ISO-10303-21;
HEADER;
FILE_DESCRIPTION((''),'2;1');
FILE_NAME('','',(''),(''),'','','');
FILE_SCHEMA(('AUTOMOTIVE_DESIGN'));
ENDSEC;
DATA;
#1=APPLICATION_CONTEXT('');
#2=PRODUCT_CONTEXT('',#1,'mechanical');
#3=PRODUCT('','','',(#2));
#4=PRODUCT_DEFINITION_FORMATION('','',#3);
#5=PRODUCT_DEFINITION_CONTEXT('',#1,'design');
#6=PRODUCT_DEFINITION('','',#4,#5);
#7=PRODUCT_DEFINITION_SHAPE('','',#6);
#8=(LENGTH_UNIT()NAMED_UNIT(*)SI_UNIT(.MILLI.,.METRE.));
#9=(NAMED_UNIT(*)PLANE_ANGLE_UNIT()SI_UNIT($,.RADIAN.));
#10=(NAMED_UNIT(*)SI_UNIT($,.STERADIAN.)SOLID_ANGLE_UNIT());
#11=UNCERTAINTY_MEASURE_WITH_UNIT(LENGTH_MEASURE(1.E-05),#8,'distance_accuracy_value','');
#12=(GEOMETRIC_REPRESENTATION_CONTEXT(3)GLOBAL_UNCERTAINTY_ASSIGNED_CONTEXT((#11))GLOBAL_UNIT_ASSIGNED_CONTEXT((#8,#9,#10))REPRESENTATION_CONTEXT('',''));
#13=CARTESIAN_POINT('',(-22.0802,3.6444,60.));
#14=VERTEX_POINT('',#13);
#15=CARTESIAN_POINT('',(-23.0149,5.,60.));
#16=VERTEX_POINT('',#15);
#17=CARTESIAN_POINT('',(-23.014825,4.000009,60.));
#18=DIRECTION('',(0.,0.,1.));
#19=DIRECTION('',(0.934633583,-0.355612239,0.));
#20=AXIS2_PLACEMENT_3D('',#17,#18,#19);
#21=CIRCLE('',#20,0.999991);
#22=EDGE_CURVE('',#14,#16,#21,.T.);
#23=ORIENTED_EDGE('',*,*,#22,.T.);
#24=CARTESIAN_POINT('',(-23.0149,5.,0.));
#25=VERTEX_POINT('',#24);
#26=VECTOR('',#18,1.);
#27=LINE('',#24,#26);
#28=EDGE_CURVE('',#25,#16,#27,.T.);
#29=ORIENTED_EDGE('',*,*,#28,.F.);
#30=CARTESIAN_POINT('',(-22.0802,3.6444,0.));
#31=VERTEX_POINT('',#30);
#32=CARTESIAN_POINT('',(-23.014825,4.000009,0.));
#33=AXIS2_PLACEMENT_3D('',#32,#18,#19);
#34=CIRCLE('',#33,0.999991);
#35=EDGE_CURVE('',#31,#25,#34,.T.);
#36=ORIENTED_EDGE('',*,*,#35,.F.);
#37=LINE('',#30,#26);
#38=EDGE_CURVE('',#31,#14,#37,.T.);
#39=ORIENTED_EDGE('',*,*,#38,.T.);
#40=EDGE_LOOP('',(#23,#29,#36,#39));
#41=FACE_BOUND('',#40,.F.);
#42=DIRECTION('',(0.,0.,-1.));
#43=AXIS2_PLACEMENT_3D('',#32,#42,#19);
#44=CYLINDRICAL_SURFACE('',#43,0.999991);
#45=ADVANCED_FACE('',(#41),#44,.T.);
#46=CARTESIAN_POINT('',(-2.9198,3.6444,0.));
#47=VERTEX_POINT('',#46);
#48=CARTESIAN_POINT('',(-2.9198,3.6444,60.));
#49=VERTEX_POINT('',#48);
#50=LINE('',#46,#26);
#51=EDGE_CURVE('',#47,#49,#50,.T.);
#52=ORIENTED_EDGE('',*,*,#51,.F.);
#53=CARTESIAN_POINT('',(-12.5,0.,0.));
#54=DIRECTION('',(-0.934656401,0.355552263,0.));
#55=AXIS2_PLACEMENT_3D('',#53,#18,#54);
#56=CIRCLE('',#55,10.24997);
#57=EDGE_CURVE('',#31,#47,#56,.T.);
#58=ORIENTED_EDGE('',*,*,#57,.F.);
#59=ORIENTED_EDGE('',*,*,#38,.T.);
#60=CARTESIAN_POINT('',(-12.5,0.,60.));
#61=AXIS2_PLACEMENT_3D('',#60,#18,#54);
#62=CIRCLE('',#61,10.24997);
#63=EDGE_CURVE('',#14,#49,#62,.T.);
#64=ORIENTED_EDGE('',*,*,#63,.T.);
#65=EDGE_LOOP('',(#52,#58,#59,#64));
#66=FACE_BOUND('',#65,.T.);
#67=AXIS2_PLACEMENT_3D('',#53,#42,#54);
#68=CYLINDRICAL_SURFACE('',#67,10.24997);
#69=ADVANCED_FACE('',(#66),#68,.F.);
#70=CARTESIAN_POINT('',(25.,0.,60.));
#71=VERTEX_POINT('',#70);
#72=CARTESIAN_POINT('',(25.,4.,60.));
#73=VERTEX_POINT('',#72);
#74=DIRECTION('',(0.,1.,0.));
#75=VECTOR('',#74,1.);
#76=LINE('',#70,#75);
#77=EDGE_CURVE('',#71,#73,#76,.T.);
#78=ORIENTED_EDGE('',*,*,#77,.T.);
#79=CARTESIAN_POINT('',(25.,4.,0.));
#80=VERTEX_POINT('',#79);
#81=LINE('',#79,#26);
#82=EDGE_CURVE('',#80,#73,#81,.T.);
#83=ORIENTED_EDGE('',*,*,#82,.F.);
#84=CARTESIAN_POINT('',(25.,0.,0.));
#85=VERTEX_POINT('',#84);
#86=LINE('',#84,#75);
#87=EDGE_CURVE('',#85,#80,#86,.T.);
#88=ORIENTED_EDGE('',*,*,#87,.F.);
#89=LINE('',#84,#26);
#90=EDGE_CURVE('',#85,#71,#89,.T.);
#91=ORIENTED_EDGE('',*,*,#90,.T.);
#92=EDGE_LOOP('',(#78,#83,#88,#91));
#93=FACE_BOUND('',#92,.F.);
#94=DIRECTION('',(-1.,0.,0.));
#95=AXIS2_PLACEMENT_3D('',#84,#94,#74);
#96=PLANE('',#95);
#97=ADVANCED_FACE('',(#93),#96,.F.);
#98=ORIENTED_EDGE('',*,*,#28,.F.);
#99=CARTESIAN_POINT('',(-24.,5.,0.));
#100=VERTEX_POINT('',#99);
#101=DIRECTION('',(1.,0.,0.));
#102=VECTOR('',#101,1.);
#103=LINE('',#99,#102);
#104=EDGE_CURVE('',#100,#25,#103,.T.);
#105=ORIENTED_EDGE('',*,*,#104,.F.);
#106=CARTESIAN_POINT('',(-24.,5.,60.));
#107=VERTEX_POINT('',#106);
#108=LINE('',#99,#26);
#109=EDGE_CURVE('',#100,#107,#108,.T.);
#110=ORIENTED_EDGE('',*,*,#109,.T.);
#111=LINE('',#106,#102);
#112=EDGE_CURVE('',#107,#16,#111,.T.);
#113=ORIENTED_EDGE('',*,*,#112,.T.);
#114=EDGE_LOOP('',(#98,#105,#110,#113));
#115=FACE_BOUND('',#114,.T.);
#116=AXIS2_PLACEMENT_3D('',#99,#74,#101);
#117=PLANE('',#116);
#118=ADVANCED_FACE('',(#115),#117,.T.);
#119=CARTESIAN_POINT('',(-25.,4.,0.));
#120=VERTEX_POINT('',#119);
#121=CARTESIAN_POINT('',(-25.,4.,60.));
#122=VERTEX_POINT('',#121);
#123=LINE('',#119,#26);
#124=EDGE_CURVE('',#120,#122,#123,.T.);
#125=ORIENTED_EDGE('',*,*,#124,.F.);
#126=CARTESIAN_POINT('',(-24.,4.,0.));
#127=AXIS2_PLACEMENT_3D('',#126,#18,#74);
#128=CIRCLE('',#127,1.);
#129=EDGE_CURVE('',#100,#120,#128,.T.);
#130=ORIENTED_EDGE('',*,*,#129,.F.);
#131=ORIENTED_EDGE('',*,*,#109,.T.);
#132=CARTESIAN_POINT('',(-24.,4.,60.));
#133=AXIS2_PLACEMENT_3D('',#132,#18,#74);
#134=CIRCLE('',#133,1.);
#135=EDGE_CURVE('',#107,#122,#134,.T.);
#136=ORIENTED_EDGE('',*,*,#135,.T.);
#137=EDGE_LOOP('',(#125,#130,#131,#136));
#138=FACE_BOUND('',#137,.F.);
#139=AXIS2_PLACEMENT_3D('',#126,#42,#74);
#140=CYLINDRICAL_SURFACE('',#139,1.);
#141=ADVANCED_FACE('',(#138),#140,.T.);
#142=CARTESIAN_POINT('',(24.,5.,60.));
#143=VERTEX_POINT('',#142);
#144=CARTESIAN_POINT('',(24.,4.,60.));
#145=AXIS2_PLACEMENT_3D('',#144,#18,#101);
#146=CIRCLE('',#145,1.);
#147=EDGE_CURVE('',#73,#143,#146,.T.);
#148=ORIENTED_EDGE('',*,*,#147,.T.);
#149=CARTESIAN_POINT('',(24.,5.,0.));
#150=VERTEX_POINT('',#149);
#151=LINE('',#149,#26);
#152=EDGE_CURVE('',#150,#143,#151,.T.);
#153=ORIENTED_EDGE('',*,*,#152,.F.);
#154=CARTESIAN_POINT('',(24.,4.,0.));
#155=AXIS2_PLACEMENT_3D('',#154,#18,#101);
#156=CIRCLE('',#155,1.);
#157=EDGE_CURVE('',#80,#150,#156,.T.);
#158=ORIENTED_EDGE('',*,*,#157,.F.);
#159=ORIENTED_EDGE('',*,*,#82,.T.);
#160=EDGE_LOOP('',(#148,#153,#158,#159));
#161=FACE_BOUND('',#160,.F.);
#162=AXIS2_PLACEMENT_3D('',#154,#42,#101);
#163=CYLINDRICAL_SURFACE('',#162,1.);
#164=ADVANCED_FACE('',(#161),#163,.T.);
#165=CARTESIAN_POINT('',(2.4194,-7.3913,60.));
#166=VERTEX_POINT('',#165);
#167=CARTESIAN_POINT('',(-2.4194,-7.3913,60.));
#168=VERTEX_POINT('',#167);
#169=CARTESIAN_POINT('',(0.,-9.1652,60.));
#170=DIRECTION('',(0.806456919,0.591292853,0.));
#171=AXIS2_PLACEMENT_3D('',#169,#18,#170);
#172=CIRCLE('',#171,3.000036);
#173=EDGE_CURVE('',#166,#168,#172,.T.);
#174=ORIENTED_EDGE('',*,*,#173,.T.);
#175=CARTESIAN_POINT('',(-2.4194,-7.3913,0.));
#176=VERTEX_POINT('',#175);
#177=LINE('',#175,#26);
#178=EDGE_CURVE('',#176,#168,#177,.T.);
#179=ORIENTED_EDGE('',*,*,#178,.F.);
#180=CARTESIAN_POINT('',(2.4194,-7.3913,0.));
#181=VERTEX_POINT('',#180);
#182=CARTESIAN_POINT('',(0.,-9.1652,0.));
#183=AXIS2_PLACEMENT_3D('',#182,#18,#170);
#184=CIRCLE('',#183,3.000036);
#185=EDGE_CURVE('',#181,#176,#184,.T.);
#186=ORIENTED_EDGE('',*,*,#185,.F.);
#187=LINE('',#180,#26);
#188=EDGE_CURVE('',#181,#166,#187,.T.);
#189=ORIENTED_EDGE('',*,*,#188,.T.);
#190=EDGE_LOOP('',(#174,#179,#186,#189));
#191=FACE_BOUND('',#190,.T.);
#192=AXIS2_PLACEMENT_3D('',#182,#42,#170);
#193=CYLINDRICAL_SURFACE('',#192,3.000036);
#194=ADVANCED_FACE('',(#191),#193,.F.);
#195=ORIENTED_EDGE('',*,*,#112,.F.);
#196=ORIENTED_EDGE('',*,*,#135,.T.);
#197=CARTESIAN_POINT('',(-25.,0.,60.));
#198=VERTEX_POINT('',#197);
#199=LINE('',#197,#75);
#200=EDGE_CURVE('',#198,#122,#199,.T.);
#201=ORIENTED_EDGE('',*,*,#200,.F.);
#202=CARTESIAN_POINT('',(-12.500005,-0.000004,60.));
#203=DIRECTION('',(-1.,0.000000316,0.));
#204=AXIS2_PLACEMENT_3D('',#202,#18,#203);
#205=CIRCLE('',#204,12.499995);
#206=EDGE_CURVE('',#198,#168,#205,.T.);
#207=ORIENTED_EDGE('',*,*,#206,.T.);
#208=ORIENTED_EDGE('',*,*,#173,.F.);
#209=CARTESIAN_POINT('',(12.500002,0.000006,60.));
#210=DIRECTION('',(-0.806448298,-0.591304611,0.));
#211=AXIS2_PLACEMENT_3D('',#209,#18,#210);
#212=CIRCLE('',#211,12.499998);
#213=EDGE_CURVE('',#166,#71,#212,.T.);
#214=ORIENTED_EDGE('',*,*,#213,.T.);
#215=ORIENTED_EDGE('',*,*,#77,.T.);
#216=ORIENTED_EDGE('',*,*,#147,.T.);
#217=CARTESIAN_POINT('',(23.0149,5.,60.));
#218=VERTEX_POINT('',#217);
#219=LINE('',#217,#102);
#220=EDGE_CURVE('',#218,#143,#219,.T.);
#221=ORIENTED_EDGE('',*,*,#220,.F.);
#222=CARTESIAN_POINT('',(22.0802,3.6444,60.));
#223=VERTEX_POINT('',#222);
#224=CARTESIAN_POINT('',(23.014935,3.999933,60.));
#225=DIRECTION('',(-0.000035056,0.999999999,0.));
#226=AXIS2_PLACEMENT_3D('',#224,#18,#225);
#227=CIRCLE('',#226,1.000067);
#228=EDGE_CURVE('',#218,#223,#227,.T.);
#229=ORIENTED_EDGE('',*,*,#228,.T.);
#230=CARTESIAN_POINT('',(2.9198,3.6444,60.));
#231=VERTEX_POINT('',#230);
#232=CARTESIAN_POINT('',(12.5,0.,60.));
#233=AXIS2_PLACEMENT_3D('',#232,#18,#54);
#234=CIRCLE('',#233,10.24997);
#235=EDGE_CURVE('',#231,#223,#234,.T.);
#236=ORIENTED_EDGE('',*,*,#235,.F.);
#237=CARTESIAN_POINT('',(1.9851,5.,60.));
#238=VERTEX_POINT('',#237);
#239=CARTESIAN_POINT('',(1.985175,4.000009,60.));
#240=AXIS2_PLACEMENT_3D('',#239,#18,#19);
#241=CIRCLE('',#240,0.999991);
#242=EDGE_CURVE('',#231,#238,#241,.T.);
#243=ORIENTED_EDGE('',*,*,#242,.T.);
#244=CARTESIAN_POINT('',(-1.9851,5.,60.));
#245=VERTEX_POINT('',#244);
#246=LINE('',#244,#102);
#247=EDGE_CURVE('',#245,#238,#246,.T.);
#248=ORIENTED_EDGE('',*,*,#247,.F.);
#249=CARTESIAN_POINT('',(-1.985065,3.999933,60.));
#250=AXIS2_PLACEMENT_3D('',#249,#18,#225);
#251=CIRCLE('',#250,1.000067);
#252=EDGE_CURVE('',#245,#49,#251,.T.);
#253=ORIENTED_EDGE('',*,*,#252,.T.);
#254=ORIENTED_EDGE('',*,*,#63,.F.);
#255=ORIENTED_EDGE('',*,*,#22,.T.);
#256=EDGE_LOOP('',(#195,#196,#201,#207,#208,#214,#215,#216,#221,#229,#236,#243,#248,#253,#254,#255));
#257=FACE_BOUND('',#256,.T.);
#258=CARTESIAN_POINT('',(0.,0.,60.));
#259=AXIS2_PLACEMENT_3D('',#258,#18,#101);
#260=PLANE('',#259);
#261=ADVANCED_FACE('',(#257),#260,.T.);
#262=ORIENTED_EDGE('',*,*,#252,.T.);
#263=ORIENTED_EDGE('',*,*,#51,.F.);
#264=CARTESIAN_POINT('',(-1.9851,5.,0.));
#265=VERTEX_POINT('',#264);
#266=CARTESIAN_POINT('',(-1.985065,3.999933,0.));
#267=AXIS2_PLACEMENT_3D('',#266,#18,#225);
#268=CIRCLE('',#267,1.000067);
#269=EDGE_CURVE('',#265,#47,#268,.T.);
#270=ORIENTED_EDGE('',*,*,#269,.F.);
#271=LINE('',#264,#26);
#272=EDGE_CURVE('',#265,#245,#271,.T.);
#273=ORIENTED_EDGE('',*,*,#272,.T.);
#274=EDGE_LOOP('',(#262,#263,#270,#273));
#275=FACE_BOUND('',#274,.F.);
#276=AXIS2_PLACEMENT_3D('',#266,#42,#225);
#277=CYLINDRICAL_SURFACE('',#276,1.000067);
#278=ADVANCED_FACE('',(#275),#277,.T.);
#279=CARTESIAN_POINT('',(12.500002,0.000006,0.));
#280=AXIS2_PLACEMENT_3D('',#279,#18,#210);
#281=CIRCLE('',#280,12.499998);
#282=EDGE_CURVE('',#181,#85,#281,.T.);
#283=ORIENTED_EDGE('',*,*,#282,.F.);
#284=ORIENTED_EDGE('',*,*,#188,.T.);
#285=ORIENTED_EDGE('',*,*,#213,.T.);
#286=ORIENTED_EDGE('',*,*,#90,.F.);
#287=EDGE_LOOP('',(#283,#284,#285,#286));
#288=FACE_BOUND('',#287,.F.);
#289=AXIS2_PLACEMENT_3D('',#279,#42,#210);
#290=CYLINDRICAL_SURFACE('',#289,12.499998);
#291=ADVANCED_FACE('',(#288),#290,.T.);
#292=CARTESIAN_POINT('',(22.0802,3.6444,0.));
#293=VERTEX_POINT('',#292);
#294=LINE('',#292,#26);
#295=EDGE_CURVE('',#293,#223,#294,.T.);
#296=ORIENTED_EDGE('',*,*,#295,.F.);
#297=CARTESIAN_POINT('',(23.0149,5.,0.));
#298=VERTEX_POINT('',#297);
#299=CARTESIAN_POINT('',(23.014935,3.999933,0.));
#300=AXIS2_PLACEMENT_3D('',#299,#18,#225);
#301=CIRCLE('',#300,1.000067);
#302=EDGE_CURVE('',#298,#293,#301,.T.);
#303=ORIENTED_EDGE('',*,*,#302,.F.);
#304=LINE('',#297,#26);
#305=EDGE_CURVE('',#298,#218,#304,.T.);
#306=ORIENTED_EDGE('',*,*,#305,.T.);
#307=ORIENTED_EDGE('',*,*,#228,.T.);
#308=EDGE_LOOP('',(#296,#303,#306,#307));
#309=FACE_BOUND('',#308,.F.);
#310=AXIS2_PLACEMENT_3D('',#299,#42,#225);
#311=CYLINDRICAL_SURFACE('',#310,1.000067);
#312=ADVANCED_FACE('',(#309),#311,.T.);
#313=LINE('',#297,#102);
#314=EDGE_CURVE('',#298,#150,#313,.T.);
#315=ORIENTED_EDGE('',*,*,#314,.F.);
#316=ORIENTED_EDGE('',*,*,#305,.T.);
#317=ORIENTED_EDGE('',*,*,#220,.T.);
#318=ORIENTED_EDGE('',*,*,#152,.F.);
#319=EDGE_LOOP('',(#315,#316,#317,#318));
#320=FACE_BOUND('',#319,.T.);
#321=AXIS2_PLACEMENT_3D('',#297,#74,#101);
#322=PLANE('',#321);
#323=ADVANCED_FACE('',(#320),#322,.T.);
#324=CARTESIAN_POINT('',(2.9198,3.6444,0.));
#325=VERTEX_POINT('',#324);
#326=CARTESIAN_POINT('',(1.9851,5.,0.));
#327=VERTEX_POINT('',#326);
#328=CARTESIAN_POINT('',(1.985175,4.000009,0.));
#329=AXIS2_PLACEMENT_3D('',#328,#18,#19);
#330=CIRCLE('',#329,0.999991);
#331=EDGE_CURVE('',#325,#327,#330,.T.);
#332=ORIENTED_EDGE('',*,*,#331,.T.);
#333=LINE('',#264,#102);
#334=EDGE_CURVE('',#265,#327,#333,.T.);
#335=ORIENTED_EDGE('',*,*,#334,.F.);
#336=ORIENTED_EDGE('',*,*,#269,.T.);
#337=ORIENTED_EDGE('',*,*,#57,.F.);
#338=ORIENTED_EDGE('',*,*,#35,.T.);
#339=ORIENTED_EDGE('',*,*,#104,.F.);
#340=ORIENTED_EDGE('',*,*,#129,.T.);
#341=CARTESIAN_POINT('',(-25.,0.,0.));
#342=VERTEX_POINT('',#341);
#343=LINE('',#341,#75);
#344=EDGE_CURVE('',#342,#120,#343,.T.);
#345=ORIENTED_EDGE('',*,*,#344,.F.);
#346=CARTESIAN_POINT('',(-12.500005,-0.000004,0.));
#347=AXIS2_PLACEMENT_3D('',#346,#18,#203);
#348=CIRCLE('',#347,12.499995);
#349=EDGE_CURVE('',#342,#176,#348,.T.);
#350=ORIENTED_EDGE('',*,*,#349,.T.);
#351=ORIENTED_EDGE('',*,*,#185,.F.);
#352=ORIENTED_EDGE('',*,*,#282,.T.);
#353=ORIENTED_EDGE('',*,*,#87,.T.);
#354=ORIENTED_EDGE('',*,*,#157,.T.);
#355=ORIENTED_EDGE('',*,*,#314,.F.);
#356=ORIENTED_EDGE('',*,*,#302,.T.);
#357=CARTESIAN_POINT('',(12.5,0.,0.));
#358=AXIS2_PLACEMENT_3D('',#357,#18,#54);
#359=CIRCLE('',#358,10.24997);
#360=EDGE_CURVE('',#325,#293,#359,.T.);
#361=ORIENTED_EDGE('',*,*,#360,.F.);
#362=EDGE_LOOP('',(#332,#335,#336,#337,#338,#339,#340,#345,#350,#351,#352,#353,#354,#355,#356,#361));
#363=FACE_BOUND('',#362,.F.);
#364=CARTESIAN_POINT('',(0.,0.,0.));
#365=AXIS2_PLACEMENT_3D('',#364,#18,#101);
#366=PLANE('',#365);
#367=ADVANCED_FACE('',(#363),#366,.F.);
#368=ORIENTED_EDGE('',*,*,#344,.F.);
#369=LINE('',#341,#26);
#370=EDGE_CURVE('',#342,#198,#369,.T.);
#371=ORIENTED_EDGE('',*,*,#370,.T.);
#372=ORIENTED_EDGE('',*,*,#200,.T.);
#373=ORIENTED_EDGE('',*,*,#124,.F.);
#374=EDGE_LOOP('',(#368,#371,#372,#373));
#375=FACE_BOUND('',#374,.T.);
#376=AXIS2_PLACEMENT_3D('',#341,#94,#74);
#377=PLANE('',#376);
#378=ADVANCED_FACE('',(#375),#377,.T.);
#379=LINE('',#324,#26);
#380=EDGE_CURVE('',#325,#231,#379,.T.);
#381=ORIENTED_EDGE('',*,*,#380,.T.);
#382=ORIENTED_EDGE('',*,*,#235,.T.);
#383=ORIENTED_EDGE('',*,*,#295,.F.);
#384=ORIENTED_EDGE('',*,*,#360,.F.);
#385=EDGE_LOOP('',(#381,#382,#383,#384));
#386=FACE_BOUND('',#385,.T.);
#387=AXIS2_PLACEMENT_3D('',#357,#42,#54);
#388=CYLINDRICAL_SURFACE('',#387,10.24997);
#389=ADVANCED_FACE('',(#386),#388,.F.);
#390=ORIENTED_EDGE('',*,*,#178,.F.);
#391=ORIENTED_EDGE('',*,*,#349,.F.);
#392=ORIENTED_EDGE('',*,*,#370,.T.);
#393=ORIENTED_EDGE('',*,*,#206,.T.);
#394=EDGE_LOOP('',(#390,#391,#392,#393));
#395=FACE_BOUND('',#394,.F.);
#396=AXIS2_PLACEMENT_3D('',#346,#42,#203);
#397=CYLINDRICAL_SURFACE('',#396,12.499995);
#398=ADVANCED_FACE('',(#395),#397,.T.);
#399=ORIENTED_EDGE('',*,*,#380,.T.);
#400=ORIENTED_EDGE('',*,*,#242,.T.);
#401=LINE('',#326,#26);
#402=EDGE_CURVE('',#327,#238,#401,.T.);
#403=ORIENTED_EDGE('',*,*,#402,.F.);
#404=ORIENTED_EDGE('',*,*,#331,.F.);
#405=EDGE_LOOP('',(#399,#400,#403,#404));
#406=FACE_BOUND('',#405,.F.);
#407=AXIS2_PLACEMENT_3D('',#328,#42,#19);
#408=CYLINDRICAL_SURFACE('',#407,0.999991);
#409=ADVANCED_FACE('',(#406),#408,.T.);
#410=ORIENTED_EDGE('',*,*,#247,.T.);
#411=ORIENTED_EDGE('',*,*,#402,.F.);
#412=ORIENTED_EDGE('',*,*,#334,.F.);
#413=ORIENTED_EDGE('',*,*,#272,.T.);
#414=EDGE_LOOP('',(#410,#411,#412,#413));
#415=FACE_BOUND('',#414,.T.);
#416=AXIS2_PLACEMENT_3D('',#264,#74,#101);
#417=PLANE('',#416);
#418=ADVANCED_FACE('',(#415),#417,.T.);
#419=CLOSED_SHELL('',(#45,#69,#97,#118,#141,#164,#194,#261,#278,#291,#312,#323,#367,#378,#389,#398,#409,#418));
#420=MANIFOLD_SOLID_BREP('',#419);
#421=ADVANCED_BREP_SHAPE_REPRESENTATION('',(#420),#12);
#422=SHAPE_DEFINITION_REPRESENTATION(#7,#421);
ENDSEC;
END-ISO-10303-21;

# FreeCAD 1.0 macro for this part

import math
import FreeCAD as App
import Part
import Sketcher
Q = App.Units.Quantity

doc = App.newDocument("Part")
body = doc.addObject("PartDesign::Body", "Body")

# Sketch on XY plane
sketch1 = body.newObject("Sketcher::SketchObject", "Sketch")
sketch1.AttachmentSupport = (doc.getObject("XY_Plane"), [""])
sketch1.MapMode = "FlatFace"
sketch1.addGeometry(Part.LineSegment(App.Vector(-25, 4, 0), App.Vector(-25, 0, 0)), False)
sketch1.addGeometry(Part.ArcOfCircle(Part.Circle(App.Vector(-12.5, 0, 0), App.Vector(0, 0, 1), 12.5), math.radians(180), math.radians(324)), False)
sketch1.addGeometry(Part.ArcOfCircle(Part.Circle(App.Vector(0, -9.2, 0), App.Vector(0, 0, 1), 3), math.radians(36), math.radians(144)), False)
sketch1.addGeometry(Part.ArcOfCircle(Part.Circle(App.Vector(12.5, 0, 0), App.Vector(0, 0, 1), 12.5), math.radians(-144), math.radians(0)), False)
sketch1.addGeometry(Part.LineSegment(App.Vector(25, 0, 0), App.Vector(25, 4, 0)), False)
sketch1.addGeometry(Part.ArcOfCircle(Part.Circle(App.Vector(24, 4, 0), App.Vector(0, 0, 1), 1), math.radians(0), math.radians(90)), False)
sketch1.addGeometry(Part.LineSegment(App.Vector(24, 5, 0), App.Vector(23, 5, 0)), False)
sketch1.addGeometry(Part.ArcOfCircle(Part.Circle(App.Vector(23, 4, 0), App.Vector(0, 0, 1), 1), math.radians(90), math.radians(201)), False)
sketch1.addGeometry(Part.ArcOfCircle(Part.Circle(App.Vector(12.5, 0, 0), App.Vector(0, 0, 1), 10.2), math.radians(159), math.radians(381)), False)
sketch1.addGeometry(Part.ArcOfCircle(Part.Circle(App.Vector(2, 4, 0), App.Vector(0, 0, 1), 1), math.radians(-21), math.radians(90)), False)
sketch1.addGeometry(Part.LineSegment(App.Vector(2, 5, 0), App.Vector(-2, 5, 0)), False)
sketch1.addGeometry(Part.ArcOfCircle(Part.Circle(App.Vector(-2, 4, 0), App.Vector(0, 0, 1), 1), math.radians(90), math.radians(201)), False)
sketch1.addGeometry(Part.ArcOfCircle(Part.Circle(App.Vector(-12.5, 0, 0), App.Vector(0, 0, 1), 10.2), math.radians(159), math.radians(381)), False)
sketch1.addGeometry(Part.ArcOfCircle(Part.Circle(App.Vector(-23, 4, 0), App.Vector(0, 0, 1), 1), math.radians(-21), math.radians(90)), False)
sketch1.addGeometry(Part.LineSegment(App.Vector(-23, 5, 0), App.Vector(-24, 5, 0)), False)
sketch1.addGeometry(Part.ArcOfCircle(Part.Circle(App.Vector(-24, 4, 0), App.Vector(0, 0, 1), 1), math.radians(90), math.radians(180)), False)
sketch1.addConstraint(Sketcher.Constraint("Tangent", 0, 2, 1, 1))
sketch1.addConstraint(Sketcher.Constraint("Tangent", 1, 2, 2, 2))
sketch1.addConstraint(Sketcher.Constraint("Tangent", 2, 1, 3, 1))
sketch1.addConstraint(Sketcher.Constraint("Tangent", 3, 2, 4, 1))
sketch1.addConstraint(Sketcher.Constraint("Tangent", 4, 2, 5, 1))
sketch1.addConstraint(Sketcher.Constraint("Tangent", 5, 2, 6, 1))
sketch1.addConstraint(Sketcher.Constraint("Tangent", 6, 2, 7, 1))
sketch1.addConstraint(Sketcher.Constraint("Tangent", 7, 2, 8, 2))
sketch1.addConstraint(Sketcher.Constraint("Tangent", 8, 1, 9, 1))
sketch1.addConstraint(Sketcher.Constraint("Tangent", 9, 2, 10, 1))
sketch1.addConstraint(Sketcher.Constraint("Tangent", 10, 2, 11, 1))
sketch1.addConstraint(Sketcher.Constraint("Tangent", 11, 2, 12, 2))
sketch1.addConstraint(Sketcher.Constraint("Tangent", 12, 1, 13, 1))
sketch1.addConstraint(Sketcher.Constraint("Tangent", 13, 2, 14, 1))
sketch1.addConstraint(Sketcher.Constraint("Tangent", 14, 2, 15, 1))
sketch1.addConstraint(Sketcher.Constraint("Tangent", 15, 2, 0, 1))
sketch1.addConstraint(Sketcher.Constraint("Vertical", 0))
sketch1.addConstraint(Sketcher.Constraint("Vertical", 4))
sketch1.addConstraint(Sketcher.Constraint("Horizontal", 6))
sketch1.addConstraint(Sketcher.Constraint("Horizontal", 10))
sketch1.addConstraint(Sketcher.Constraint("Horizontal", 14))
sketch1.addConstraint(Sketcher.Constraint("Coincident", 8, 3, 3, 3))
sketch1.addConstraint(Sketcher.Constraint("Coincident", 12, 3, 1, 3))
sketch1.addConstraint(Sketcher.Constraint("Equal", 1, 3))
sketch1.addConstraint(Sketcher.Constraint("Equal", 5, 7))
sketch1.addConstraint(Sketcher.Constraint("Equal", 7, 9))
sketch1.addConstraint(Sketcher.Constraint("Equal", 9, 11))
sketch1.addConstraint(Sketcher.Constraint("Equal", 8, 12))
sketch1.addConstraint(Sketcher.Constraint("Equal", 11, 13))
sketch1.addConstraint(Sketcher.Constraint("Equal", 13, 15))
sketch1.addConstraint(Sketcher.Constraint("Symmetric", 1, 3, 3, 3, -1, 1))
sketch1.addConstraint(Sketcher.Constraint("Symmetric", 7, 3, 13, 3, -2))
sketch1.addConstraint(Sketcher.Constraint("Horizontal", 7, 3, 9, 3))
sketch1.addConstraint(Sketcher.Constraint("Radius", 2, Q("3 mm")))
sketch1.addConstraint(Sketcher.Constraint("Radius", 5, Q("1 mm")))
sketch1.addConstraint(Sketcher.Constraint("Radius", 1, Q("12.5 mm")))
sketch1.addConstraint(Sketcher.Constraint("Radius", 8, Q("10.25 mm")))
sketch1.addConstraint(Sketcher.Constraint("DistanceY", -1, 1, 5, 2, Q("5 mm")))
sketch1.addConstraint(Sketcher.Constraint("DistanceX", 1, 3, -1, 1, Q("12.5 mm")))
pad1 = body.newObject("PartDesign::Pad", "Pad")
pad1.Profile = sketch1
pad1.Length = 60

doc.recompute()
